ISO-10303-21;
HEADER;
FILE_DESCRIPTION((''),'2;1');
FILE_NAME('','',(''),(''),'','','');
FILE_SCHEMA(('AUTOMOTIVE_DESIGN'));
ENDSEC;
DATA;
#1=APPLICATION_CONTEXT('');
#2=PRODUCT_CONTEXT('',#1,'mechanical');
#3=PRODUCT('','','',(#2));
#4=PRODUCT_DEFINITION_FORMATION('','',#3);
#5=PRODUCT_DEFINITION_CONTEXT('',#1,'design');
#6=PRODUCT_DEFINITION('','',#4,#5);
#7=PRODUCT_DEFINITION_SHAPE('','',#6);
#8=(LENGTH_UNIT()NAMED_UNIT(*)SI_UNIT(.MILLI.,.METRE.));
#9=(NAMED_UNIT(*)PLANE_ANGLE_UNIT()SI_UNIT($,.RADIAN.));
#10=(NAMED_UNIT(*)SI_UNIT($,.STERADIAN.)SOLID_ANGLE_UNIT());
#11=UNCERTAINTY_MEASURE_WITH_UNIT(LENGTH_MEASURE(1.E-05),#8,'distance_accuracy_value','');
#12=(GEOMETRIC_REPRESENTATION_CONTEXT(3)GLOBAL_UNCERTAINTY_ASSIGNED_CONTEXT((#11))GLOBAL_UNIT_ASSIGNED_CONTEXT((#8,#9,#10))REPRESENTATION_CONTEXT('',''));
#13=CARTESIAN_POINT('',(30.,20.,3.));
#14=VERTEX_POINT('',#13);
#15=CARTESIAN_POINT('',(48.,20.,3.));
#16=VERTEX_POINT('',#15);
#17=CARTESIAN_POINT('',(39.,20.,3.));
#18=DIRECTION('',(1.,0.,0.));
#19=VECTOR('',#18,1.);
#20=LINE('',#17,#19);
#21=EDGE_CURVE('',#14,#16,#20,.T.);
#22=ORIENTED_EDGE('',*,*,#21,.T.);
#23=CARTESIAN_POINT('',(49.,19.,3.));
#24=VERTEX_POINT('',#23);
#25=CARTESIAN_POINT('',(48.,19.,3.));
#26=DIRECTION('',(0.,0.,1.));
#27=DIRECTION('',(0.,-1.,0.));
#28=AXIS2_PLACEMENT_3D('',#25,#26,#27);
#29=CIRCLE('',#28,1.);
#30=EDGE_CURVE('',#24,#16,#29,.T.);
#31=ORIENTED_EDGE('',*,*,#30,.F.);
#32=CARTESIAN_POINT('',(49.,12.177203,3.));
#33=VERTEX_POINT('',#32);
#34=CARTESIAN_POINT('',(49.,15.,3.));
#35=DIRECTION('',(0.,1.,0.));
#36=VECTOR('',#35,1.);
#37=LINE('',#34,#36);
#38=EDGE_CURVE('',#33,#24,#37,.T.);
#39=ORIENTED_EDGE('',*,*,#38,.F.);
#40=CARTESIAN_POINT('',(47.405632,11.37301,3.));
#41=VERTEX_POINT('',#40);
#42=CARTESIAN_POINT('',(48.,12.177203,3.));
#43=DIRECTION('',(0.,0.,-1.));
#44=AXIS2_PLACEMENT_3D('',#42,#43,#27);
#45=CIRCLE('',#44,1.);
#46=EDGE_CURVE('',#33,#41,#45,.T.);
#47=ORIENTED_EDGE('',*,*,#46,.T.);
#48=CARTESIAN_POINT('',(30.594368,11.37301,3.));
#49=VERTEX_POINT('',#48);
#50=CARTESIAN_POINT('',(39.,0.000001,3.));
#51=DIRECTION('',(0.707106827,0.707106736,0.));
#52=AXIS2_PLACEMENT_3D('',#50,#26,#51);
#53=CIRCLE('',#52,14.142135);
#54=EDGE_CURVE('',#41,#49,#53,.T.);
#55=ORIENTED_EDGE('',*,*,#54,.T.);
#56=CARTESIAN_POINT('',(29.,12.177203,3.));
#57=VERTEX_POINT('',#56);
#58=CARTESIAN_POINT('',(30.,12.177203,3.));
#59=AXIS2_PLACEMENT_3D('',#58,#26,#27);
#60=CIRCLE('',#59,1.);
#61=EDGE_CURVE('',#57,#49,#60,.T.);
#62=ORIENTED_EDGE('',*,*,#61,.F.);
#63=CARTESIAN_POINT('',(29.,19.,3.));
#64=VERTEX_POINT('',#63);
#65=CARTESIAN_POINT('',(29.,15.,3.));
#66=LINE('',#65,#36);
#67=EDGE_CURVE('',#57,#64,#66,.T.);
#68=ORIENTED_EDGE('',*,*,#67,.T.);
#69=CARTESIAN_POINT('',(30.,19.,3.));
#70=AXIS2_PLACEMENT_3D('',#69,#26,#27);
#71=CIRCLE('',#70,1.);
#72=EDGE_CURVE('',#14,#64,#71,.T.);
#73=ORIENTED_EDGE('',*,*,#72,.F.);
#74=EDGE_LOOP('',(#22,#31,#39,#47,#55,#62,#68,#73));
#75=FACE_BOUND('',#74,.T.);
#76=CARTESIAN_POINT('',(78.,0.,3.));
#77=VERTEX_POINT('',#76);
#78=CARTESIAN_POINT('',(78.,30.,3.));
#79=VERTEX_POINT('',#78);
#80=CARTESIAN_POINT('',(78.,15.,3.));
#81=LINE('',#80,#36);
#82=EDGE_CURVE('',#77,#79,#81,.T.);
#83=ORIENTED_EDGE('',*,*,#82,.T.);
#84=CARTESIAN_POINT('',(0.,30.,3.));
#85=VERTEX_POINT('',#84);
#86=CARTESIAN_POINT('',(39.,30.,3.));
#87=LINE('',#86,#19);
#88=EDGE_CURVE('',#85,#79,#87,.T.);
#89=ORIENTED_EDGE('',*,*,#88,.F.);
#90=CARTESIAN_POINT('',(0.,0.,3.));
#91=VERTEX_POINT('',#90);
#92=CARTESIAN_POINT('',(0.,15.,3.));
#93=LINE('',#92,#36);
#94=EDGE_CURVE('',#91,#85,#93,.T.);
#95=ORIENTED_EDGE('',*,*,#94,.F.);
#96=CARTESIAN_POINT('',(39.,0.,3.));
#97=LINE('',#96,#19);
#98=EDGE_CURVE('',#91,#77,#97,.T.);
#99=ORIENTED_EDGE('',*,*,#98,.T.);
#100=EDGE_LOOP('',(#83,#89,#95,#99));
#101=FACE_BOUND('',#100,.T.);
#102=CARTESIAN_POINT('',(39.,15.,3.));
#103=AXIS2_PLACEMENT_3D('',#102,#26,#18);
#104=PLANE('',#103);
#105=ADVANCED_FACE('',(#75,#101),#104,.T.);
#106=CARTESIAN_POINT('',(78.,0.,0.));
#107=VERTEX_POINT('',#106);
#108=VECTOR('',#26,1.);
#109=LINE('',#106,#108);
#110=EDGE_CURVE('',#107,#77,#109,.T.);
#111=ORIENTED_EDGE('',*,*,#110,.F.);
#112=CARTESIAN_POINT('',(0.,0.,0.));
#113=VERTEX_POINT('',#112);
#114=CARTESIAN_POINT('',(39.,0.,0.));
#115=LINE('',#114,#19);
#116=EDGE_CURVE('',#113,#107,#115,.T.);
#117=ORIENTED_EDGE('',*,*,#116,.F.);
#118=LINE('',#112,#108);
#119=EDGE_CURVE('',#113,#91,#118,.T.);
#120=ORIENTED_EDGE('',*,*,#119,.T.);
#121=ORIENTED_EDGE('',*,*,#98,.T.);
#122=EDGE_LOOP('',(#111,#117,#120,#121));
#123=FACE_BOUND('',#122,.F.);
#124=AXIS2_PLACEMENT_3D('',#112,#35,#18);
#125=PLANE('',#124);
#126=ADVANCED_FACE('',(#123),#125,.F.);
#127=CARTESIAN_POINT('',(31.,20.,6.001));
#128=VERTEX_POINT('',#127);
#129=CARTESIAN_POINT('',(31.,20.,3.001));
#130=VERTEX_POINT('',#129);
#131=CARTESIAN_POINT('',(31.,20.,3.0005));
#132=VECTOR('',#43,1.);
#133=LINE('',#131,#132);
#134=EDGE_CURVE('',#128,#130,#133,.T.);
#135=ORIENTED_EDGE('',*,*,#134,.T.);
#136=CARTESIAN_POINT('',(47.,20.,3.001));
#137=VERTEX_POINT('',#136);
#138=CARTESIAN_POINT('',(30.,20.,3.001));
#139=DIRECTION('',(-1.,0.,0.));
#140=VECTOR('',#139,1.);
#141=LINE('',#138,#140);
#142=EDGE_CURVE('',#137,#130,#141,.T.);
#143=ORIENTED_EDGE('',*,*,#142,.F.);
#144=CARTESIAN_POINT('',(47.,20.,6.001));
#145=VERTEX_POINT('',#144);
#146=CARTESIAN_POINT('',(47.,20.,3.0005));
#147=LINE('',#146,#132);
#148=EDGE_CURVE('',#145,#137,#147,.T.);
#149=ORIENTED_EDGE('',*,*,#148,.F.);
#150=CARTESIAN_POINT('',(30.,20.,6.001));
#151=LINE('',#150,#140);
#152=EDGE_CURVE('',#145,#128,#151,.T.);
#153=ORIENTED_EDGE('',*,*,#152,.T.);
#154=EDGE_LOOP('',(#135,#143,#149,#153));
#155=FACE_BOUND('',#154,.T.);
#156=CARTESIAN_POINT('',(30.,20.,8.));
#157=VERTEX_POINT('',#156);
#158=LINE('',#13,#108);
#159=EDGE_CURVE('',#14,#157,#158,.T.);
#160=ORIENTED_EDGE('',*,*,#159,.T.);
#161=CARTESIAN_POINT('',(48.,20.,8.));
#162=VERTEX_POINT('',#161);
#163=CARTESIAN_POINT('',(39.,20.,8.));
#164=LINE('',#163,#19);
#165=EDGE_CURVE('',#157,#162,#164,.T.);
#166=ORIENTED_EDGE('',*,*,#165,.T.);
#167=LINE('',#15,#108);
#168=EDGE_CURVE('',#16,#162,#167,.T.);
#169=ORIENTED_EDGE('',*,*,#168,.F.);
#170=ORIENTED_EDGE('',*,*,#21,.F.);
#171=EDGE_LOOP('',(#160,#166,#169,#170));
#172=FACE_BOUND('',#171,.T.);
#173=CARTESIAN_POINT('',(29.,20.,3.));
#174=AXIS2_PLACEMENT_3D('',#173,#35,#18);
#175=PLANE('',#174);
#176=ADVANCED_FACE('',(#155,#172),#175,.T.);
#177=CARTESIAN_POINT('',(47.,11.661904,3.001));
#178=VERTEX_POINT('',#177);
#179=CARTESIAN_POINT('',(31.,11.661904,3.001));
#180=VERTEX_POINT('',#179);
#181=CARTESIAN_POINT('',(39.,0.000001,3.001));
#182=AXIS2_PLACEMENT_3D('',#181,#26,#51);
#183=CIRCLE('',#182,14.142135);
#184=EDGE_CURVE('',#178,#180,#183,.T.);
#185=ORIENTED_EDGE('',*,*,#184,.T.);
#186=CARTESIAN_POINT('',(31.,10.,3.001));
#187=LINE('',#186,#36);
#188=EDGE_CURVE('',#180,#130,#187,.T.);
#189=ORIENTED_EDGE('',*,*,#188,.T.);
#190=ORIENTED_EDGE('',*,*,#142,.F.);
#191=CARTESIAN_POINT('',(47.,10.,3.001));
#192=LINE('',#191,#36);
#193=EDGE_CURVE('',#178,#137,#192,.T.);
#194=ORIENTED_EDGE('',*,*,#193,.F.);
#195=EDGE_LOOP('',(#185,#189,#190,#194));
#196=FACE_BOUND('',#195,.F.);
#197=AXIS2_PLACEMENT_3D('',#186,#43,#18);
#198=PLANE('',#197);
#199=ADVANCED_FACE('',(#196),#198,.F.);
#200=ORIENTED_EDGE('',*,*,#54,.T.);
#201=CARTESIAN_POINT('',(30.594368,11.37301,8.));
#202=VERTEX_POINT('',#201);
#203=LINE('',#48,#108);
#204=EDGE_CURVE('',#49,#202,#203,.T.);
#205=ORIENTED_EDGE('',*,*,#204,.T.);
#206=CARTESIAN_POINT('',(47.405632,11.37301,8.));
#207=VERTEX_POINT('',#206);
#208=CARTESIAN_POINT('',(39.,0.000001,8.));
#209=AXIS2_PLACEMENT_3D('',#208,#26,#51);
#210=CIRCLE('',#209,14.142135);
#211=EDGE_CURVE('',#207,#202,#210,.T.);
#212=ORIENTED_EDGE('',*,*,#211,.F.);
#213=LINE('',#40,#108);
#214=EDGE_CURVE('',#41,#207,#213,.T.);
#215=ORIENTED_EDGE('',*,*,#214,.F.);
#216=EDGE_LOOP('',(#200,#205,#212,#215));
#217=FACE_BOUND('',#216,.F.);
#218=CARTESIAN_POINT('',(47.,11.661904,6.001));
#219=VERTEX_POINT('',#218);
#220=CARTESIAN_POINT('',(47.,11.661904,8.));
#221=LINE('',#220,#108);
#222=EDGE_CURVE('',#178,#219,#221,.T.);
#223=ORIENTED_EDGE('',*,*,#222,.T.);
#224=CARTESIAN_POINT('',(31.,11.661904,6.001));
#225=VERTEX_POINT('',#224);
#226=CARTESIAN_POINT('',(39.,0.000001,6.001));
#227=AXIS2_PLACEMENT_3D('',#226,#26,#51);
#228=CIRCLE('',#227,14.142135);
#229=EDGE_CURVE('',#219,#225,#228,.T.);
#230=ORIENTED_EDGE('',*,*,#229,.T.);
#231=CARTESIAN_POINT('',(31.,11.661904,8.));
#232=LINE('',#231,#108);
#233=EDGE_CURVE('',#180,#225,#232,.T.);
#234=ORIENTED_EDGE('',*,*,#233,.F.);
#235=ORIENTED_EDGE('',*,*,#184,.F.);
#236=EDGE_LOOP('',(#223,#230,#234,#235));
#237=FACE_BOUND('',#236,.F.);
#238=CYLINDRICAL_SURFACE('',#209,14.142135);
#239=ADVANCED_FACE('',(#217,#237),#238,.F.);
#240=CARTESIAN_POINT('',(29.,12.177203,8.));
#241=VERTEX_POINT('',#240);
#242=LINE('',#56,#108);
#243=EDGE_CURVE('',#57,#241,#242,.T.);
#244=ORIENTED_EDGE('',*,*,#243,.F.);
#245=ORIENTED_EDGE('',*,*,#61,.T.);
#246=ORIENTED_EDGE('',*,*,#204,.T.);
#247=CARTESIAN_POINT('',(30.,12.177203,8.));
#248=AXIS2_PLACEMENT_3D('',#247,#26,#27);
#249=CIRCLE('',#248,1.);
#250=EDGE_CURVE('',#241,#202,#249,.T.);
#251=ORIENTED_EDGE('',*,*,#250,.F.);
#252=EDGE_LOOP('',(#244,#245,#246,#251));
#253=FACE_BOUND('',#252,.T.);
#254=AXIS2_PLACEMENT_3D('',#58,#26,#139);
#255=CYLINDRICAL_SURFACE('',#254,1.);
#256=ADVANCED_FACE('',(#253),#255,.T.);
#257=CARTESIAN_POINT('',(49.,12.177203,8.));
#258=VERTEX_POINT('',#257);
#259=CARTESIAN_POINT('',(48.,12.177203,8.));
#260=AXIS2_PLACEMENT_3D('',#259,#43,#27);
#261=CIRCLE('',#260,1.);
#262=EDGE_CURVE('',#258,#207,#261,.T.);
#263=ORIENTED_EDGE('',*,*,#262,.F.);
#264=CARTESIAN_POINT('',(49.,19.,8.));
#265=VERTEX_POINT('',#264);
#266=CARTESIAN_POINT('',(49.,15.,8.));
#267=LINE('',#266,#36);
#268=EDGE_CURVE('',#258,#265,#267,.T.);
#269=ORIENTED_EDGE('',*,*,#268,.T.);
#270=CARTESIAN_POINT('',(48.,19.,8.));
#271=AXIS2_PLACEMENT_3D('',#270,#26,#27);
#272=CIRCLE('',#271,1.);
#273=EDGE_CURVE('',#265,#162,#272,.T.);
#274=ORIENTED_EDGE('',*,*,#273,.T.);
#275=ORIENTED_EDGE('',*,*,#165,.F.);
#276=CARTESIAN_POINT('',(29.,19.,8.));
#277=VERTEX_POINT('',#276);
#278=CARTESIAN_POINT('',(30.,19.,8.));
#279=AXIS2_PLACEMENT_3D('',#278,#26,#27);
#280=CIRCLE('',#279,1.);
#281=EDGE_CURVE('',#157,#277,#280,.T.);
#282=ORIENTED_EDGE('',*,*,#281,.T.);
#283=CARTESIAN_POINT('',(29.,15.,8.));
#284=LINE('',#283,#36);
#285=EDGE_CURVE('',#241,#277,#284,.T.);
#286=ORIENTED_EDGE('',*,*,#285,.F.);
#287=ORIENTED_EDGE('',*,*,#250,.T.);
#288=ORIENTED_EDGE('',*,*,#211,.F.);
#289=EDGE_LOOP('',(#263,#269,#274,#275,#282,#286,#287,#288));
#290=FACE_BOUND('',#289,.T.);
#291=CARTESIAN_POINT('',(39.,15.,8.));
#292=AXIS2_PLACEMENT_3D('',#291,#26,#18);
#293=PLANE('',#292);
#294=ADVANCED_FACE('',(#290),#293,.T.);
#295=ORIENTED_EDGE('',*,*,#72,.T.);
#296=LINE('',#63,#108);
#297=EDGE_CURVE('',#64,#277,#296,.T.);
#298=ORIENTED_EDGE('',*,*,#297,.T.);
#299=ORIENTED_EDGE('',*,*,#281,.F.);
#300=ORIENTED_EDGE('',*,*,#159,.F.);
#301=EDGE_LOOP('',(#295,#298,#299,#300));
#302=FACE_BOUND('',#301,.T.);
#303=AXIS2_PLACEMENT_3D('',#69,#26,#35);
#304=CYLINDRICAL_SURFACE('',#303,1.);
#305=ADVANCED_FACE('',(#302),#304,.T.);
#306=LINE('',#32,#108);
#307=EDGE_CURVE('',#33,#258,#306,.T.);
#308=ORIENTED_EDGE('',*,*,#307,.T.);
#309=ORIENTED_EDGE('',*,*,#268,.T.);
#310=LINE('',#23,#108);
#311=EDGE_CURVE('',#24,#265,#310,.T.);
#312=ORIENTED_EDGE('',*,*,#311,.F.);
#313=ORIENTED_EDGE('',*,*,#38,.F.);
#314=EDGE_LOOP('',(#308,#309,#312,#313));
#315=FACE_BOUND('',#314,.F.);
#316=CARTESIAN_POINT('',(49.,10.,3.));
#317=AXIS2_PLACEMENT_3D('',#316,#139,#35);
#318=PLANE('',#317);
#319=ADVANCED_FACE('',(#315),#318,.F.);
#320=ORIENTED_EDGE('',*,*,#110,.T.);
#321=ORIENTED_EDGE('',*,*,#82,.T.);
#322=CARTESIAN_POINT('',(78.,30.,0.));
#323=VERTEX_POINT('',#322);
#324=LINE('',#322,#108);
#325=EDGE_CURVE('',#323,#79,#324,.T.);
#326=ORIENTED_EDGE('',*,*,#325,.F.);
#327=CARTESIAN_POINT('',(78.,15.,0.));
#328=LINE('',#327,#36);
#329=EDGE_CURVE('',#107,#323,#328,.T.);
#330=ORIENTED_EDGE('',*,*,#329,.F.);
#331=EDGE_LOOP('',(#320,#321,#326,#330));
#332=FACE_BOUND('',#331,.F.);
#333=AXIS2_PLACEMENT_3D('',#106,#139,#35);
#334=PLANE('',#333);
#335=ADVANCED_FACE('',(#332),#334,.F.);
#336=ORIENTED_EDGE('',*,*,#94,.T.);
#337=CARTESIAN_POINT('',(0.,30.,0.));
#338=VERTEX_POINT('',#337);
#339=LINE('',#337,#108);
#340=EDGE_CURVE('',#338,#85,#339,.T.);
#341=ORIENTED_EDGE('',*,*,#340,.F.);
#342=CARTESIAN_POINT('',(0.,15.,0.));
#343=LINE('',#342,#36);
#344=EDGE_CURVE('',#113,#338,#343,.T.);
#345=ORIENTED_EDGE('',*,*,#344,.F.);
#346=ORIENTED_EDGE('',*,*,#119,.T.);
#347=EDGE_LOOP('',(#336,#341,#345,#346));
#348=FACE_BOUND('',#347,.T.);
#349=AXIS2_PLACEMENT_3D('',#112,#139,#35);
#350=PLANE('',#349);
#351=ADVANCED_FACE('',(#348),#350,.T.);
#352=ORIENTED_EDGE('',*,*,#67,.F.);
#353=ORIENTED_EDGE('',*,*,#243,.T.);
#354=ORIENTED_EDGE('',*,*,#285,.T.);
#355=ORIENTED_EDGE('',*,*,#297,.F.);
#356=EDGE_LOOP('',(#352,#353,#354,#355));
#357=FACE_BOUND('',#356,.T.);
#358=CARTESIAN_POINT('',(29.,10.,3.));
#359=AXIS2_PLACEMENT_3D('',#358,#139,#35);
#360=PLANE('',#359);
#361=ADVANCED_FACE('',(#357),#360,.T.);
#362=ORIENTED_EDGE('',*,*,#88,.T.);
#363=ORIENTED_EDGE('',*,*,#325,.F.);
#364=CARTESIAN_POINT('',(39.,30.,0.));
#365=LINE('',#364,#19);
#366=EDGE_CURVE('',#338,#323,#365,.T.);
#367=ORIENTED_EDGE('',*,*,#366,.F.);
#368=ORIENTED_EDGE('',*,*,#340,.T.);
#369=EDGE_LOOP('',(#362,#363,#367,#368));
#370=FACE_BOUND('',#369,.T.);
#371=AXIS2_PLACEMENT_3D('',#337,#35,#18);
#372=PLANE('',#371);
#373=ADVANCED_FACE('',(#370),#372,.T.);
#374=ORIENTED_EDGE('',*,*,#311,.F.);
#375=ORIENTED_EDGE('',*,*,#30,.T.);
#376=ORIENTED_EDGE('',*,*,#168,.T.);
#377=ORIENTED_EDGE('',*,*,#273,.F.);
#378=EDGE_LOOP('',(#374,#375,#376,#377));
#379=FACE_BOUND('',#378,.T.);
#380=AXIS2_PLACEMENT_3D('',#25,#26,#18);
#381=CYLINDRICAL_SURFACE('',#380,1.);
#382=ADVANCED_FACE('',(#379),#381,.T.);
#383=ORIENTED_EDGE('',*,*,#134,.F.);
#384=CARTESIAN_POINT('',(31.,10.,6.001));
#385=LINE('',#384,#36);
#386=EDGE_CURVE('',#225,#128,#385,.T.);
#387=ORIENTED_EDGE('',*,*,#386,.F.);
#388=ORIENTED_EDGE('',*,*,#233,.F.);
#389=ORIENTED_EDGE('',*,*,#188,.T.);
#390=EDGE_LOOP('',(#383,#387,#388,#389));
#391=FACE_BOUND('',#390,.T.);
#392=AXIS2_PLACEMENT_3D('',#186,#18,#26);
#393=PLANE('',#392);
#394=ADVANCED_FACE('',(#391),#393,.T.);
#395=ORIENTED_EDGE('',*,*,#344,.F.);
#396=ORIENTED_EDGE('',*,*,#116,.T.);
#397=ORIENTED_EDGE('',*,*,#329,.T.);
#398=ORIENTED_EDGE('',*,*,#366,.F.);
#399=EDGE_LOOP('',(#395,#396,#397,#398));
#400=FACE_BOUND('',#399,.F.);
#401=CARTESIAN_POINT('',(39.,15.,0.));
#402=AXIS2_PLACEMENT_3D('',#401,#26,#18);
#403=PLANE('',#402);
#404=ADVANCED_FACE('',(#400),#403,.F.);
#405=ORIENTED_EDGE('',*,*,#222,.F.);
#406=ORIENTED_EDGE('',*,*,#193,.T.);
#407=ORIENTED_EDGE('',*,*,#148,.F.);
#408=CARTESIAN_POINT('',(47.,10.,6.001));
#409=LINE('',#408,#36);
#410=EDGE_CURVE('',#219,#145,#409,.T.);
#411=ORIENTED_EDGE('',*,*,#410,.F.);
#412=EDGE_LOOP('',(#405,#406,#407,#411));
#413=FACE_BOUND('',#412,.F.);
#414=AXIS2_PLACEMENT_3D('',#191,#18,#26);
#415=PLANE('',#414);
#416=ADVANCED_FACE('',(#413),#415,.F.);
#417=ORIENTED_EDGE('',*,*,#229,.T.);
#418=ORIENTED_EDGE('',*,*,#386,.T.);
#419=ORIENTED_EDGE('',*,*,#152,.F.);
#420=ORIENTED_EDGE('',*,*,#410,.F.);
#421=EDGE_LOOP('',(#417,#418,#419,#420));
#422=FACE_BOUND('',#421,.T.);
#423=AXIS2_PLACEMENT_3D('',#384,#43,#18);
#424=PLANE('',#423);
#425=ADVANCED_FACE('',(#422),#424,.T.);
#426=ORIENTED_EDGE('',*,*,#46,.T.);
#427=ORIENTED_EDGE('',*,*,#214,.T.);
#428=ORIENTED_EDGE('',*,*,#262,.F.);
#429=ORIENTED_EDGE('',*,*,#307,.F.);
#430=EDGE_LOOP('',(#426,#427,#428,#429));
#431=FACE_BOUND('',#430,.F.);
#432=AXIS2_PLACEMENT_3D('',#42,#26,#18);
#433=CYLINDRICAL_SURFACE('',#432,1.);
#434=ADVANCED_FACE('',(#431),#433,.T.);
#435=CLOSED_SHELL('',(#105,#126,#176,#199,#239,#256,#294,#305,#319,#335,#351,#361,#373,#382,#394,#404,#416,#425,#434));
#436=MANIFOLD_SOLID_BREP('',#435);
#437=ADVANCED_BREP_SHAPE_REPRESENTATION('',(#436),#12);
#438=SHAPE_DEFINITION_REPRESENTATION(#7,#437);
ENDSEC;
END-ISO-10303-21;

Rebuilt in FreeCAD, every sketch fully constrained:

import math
import FreeCAD as App
import Part
import Sketcher

V = App.Vector


def edges_at(feature, points):
    """Names of the edges that pass closest to the given points."""
    edges = feature.Shape.Edges
    near = lambda p: min(range(len(edges)), key=lambda i: edges[i].distToShape(Part.Vertex(*p))[0])
    return sorted({f"Edge{near(p) + 1}" for p in points})

doc = App.newDocument("Part")
body = doc.addObject("PartDesign::Body", "Body")

# Sketch on XY plane
sketch1 = body.newObject("Sketcher::SketchObject", "Sketch")
sketch1.AttachmentSupport = (doc.getObject("XY_Plane"), [""])
sketch1.MapMode = "FlatFace"
sketch1.addGeometry([
    Part.LineSegment(V(0, 30, 0), V(0, 0, 0)),
    Part.LineSegment(V(0, 0, 0), V(78, 0, 0)),
    Part.LineSegment(V(78, 0, 0), V(78, 30, 0)),
    Part.LineSegment(V(78, 30, 0), V(0, 30, 0)),
], False)
sketch1.addConstraint([
    Sketcher.Constraint("Coincident", 0, 2, 1, 1),
    Sketcher.Constraint("Coincident", 1, 2, 2, 1),
    Sketcher.Constraint("Coincident", 2, 2, 3, 1),
    Sketcher.Constraint("Coincident", 3, 2, 0, 1),
    Sketcher.Constraint("Vertical", 0),
    Sketcher.Constraint("Horizontal", 1),
    Sketcher.Constraint("Vertical", 2),
    Sketcher.Constraint("Horizontal", 3),
    Sketcher.Constraint("Coincident", 0, 2, -1, 1),
    Sketcher.Constraint("DistanceX", 1, 1, 1, 2, 78.0),
    Sketcher.Constraint("DistanceY", 0, 2, 0, 1, 30.0),
])
pad1 = body.newObject("PartDesign::Pad", "Pad")
pad1.Profile = sketch1
pad1.Length = 3

# Sketch on XY plane
sketch2 = body.newObject("Sketcher::SketchObject", "Sketch001")
sketch2.AttachmentSupport = (doc.getObject("XY_Plane"), [""])
sketch2.MapMode = "FlatFace"
sketch2.AttachmentOffset = App.Placement(V(0, 0, 3), App.Rotation())
sketch2.addGeometry([
    Part.LineSegment(V(29, 20, 0), V(29, 10, 0)),
    Part.LineSegment(V(29, 10, 0), V(49, 10, 0)),
    Part.LineSegment(V(49, 10, 0), V(49, 20, 0)),
    Part.LineSegment(V(49, 20, 0), V(29, 20, 0)),
], False)
sketch2.addConstraint([
    Sketcher.Constraint("Coincident", 0, 2, 1, 1),
    Sketcher.Constraint("Coincident", 1, 2, 2, 1),
    Sketcher.Constraint("Coincident", 2, 2, 3, 1),
    Sketcher.Constraint("Coincident", 3, 2, 0, 1),
    Sketcher.Constraint("Vertical", 0),
    Sketcher.Constraint("Horizontal", 1),
    Sketcher.Constraint("Vertical", 2),
    Sketcher.Constraint("Horizontal", 3),
    Sketcher.Constraint("DistanceX", 1, 1, 1, 2, 20.0),
    Sketcher.Constraint("DistanceY", 0, 2, 0, 1, 10.0),
    Sketcher.Constraint("DistanceX", -1, 1, 0, 2, 29.0),
    Sketcher.Constraint("DistanceY", -1, 1, 0, 2, 10.0),
])
pad2 = body.newObject("PartDesign::Pad", "Pad001")
pad2.Profile = sketch2
pad2.Length = 5

# Sketch on XZ plane
sketch3 = body.newObject("Sketcher::SketchObject", "Sketch002")
sketch3.AttachmentSupport = (doc.getObject("XZ_Plane"), [""])
sketch3.MapMode = "FlatFace"
sketch3.AttachmentOffset = App.Placement(V(0, 0, -10), App.Rotation())
sketch3.addGeometry([
    Part.LineSegment(V(31, 6.001, 0), V(31, 3.001, 0)),
    Part.LineSegment(V(31, 3.001, 0), V(47, 3.001, 0)),
    Part.LineSegment(V(47, 3.001, 0), V(47, 6.001, 0)),
    Part.LineSegment(V(47, 6.001, 0), V(31, 6.001, 0)),
], False)
sketch3.addConstraint([
    Sketcher.Constraint("Coincident", 0, 2, 1, 1),
    Sketcher.Constraint("Coincident", 1, 2, 2, 1),
    Sketcher.Constraint("Coincident", 2, 2, 3, 1),
    Sketcher.Constraint("Coincident", 3, 2, 0, 1),
    Sketcher.Constraint("Vertical", 0),
    Sketcher.Constraint("Horizontal", 1),
    Sketcher.Constraint("Vertical", 2),
    Sketcher.Constraint("Horizontal", 3),
    Sketcher.Constraint("DistanceX", 1, 1, 1, 2, 16.0),
    Sketcher.Constraint("DistanceY", 0, 2, 0, 1, 3.0),
    Sketcher.Constraint("DistanceX", -1, 1, 0, 2, 31.0),
    Sketcher.Constraint("DistanceY", -1, 1, 0, 2, 3.001),
])
pocket1 = body.newObject("PartDesign::Pocket", "Pocket")
pocket1.Profile = sketch3
pocket1.Type = "ThroughAll"

# Sketch on XY plane
sketch4 = body.newObject("Sketcher::SketchObject", "Sketch003")
sketch4.AttachmentSupport = (doc.getObject("XY_Plane"), [""])
sketch4.MapMode = "FlatFace"
sketch4.AttachmentOffset = App.Placement(V(0, 0, 8), App.Rotation())
sketch4.addGeometry([
    Part.ArcOfCircle(Part.Circle(V(39, 0.000001, 0), V(0, 0, 1), 14.142135), math.radians(44.999996), math.radians(135.000004)),
    Part.LineSegment(V(29, 10, 0), V(49, 10, 0)),
], False)
sketch4.addConstraint([
    Sketcher.Constraint("Coincident", 0, 1, 1, 2),
    Sketcher.Constraint("Coincident", 1, 1, 0, 2),
    Sketcher.Constraint("Horizontal", 1),
    Sketcher.Constraint("PointOnObject", 0, 3, -1),
    Sketcher.Constraint("DistanceX", 1, 1, 1, 2, 20.0),
    Sketcher.Constraint("DistanceX", -1, 1, 0, 3, 39.0),
    Sketcher.Constraint("DistanceY", -1, 1, 0, 1, 10.0),
])
pocket2 = body.newObject("PartDesign::Pocket", "Pocket001")
pocket2.Profile = sketch4
pocket2.Length = 5
doc.recompute()

fillet = body.newObject("PartDesign::Fillet", "Fillet")
fillet.Base = (pocket2, edges_at(pocket2, [
    (49, 10, 5.5),
    (49, 20, 5.5),
    (29, 20, 5.5),
    (29, 10, 5.5),
]))
fillet.Radius = 1

doc.recompute()
